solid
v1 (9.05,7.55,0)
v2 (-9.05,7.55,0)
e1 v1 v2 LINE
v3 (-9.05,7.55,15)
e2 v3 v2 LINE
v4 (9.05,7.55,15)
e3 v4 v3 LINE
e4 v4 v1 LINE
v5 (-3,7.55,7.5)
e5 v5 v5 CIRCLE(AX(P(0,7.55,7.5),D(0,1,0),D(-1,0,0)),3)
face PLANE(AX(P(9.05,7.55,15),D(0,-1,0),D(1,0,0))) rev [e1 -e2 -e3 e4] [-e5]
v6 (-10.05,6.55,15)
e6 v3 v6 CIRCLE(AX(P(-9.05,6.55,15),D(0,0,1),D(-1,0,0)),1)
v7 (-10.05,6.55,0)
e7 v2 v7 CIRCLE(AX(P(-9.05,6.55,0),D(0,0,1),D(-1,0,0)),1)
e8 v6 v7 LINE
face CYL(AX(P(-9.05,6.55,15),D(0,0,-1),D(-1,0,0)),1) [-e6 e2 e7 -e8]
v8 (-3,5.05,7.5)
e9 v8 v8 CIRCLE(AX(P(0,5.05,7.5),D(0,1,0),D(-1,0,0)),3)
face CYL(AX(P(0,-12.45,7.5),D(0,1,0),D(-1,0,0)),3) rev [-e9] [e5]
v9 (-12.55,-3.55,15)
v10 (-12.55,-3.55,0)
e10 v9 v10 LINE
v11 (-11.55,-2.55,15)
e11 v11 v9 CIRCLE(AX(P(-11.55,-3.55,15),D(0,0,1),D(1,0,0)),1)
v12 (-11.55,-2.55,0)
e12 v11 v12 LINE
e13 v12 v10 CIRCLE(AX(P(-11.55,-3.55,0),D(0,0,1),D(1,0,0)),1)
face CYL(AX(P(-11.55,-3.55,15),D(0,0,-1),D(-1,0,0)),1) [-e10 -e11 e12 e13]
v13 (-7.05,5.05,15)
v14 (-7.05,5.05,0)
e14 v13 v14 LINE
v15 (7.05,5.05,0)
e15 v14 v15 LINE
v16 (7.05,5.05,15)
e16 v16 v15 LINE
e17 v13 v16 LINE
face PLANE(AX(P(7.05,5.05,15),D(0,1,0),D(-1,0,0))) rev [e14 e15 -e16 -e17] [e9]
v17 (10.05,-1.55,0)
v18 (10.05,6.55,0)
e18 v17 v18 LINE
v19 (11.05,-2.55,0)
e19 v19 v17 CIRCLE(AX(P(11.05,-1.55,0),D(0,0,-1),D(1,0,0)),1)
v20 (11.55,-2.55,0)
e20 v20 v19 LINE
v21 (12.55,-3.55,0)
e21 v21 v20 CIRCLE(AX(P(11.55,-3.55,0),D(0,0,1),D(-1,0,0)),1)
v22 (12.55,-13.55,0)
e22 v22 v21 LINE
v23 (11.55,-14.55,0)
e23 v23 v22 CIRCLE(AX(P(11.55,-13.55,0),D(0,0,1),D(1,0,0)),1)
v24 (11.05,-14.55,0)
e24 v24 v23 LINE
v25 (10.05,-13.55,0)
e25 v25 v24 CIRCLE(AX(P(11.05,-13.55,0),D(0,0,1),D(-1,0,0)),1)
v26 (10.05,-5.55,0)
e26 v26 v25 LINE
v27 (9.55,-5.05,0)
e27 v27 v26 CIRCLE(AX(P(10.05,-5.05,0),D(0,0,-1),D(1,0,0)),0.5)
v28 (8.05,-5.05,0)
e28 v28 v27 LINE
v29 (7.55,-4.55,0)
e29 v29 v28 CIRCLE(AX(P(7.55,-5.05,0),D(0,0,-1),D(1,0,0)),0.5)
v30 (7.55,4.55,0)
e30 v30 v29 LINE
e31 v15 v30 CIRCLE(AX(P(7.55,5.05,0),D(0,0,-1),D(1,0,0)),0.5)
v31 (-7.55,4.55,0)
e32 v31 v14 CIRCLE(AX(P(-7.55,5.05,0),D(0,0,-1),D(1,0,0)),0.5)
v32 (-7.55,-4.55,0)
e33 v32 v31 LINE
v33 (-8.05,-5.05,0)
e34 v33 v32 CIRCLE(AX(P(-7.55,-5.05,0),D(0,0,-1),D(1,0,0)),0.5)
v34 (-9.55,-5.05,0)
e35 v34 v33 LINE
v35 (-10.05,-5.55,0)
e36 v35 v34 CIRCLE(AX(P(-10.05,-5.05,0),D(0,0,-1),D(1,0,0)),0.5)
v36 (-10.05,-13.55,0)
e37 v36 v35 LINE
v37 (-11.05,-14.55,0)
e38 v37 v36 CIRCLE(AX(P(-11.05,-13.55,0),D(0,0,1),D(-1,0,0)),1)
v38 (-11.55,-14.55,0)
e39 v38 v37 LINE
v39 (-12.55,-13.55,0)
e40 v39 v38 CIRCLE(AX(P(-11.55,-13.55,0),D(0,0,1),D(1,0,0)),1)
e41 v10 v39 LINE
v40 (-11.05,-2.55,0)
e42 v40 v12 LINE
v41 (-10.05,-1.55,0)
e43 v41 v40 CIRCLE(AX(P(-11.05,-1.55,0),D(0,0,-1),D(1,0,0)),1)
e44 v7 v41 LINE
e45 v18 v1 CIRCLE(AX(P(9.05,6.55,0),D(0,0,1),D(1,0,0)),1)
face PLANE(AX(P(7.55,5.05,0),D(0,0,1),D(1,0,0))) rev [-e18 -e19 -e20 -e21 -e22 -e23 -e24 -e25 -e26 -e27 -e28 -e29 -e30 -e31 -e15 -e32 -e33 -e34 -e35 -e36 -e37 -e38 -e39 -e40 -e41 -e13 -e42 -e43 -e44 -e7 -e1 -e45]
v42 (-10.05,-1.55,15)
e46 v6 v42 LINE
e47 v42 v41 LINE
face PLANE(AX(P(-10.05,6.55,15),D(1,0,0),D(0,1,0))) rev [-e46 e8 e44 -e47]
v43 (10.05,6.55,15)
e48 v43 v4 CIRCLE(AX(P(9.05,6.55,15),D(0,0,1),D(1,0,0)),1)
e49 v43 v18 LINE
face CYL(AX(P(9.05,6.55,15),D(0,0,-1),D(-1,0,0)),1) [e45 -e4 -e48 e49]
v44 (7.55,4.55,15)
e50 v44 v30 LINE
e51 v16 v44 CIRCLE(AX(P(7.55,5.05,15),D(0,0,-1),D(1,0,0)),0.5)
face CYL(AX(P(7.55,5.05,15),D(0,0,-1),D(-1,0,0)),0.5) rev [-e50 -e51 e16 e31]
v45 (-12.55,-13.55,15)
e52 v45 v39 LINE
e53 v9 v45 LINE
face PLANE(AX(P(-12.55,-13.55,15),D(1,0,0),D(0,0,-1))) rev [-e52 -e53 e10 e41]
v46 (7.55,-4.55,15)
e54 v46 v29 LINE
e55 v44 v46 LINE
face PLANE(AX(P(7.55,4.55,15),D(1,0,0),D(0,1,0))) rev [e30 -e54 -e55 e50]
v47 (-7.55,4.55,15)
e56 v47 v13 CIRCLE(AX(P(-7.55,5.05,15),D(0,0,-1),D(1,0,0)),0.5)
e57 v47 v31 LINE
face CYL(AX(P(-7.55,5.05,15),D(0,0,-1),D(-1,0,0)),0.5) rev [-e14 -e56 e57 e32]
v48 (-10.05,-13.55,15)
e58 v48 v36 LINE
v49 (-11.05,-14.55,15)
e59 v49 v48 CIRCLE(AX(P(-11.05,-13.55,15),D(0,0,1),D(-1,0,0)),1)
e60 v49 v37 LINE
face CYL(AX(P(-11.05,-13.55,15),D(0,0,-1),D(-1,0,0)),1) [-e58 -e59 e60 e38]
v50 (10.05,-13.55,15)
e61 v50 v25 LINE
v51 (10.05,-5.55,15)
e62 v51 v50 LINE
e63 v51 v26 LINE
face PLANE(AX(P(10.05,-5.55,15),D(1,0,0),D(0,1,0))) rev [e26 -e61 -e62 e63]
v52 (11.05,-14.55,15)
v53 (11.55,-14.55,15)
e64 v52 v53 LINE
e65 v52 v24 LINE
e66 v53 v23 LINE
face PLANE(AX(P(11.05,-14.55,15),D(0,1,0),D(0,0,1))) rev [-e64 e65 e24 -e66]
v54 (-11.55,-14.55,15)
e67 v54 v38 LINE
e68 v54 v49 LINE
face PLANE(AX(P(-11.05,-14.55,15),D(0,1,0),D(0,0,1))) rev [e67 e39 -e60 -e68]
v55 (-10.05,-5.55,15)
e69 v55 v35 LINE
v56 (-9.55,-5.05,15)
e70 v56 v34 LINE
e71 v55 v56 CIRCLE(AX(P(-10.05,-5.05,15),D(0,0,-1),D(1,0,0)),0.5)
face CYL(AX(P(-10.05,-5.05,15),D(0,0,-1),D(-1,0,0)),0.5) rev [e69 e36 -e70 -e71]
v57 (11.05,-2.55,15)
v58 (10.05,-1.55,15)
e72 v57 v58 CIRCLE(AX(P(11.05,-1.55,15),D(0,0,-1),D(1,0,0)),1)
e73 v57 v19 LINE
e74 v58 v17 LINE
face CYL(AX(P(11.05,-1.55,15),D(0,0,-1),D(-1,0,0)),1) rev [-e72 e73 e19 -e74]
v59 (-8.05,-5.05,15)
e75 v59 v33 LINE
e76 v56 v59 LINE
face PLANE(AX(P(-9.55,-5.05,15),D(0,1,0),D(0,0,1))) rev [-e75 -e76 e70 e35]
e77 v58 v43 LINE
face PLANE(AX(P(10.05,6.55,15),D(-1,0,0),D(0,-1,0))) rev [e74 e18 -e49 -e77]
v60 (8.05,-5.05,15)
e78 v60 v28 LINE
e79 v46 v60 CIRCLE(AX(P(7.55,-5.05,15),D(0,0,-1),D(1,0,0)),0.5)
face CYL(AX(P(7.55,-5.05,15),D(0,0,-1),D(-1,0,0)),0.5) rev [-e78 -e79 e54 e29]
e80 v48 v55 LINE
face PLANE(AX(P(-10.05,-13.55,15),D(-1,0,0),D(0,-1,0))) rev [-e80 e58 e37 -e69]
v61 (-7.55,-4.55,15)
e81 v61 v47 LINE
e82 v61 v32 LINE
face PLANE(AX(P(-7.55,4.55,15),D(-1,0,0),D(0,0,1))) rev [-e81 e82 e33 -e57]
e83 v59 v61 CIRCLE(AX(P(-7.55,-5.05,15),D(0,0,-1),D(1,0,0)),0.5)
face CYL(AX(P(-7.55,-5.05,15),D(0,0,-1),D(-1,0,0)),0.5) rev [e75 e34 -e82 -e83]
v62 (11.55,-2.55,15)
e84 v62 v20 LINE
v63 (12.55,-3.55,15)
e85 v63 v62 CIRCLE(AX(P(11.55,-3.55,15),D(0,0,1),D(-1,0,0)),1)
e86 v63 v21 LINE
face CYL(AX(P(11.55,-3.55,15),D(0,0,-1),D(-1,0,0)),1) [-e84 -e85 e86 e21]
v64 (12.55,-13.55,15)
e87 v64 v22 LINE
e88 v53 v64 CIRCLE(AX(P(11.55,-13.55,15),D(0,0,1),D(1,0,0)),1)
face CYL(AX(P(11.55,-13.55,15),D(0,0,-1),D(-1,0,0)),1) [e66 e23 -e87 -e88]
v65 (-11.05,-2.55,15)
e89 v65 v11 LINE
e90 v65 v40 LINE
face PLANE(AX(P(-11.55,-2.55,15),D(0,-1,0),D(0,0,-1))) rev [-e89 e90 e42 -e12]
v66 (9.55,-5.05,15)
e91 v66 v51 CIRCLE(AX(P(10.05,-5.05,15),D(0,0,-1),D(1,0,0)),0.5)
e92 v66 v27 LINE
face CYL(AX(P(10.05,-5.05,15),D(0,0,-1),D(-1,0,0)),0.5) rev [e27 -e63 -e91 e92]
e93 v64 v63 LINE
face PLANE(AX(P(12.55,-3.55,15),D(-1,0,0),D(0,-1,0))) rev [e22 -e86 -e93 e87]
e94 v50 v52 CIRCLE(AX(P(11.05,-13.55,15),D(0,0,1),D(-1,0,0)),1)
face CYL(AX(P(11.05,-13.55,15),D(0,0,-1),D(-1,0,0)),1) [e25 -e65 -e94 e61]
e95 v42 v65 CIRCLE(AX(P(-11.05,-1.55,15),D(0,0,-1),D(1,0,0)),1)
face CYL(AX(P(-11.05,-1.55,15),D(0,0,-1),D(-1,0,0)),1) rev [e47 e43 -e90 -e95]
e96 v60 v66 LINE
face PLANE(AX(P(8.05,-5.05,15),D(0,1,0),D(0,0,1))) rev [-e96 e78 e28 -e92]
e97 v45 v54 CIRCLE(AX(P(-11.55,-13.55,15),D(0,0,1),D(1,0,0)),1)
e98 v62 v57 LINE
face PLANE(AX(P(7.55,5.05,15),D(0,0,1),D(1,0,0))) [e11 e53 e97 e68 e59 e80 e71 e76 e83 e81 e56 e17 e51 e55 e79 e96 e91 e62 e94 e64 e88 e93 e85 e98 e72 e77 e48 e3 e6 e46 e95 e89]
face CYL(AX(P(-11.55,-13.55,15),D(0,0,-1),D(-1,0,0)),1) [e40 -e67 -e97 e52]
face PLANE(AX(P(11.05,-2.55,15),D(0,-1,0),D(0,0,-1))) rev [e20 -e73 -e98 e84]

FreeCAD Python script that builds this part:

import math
import FreeCAD as App
import Part
import Sketcher
from FreeCAD import Vector

doc = App.newDocument("Part")
body = doc.addObject("PartDesign::Body", "Body")

sketch1 = body.newObject("Sketcher::SketchObject", "Sketch")
sketch1.AttachmentSupport = (doc.getObject("XY_Plane"), [""])
sketch1.MapMode = "FlatFace"
sketch1.addGeometry([
    Part.LineSegment(Vector(-9.55, -5.05, 0), Vector(-8.05, -5.05, 0)),
    Part.ArcOfCircle(Part.Circle(Vector(-7.55, -5.05, 0), Vector(0, 0, 1), 0.5), math.radians(90), math.radians(180)),
    Part.LineSegment(Vector(-7.55, -4.55, 0), Vector(-7.55, 4.55, 0)),
    Part.ArcOfCircle(Part.Circle(Vector(-7.55, 5.05, 0), Vector(0, 0, 1), 0.5), math.radians(0), math.radians(270)),
    Part.LineSegment(Vector(-7.05, 5.05, 0), Vector(7.05, 5.05, 0)),
    Part.ArcOfCircle(Part.Circle(Vector(7.55, 5.05, 0), Vector(0, 0, 1), 0.5), math.radians(-90), math.radians(180)),
    Part.LineSegment(Vector(7.55, 4.55, 0), Vector(7.55, -4.55, 0)),
    Part.ArcOfCircle(Part.Circle(Vector(7.55, -5.05, 0), Vector(0, 0, 1), 0.5), math.radians(0), math.radians(90)),
    Part.LineSegment(Vector(8.05, -5.05, 0), Vector(9.55, -5.05, 0)),
    Part.ArcOfCircle(Part.Circle(Vector(10.05, -5.05, 0), Vector(0, 0, 1), 0.5), math.radians(-90), math.radians(180)),
    Part.LineSegment(Vector(10.05, -5.55, 0), Vector(10.05, -13.55, 0)),
    Part.ArcOfCircle(Part.Circle(Vector(11.05, -13.55, 0), Vector(0, 0, 1), 1), math.radians(-180), math.radians(-90)),
    Part.LineSegment(Vector(11.05, -14.55, 0), Vector(11.55, -14.55, 0)),
    Part.ArcOfCircle(Part.Circle(Vector(11.55, -13.55, 0), Vector(0, 0, 1), 1), math.radians(-90), math.radians(0)),
    Part.LineSegment(Vector(12.55, -13.55, 0), Vector(12.55, -3.55, 0)),
    Part.ArcOfCircle(Part.Circle(Vector(11.55, -3.55, 0), Vector(0, 0, 1), 1), math.radians(0), math.radians(90)),
    Part.LineSegment(Vector(11.55, -2.55, 0), Vector(11.05, -2.55, 0)),
    Part.ArcOfCircle(Part.Circle(Vector(11.05, -1.55, 0), Vector(0, 0, 1), 1), math.radians(-180), math.radians(-90)),
    Part.LineSegment(Vector(10.05, -1.55, 0), Vector(10.05, 6.55, 0)),
    Part.ArcOfCircle(Part.Circle(Vector(9.05, 6.55, 0), Vector(0, 0, 1), 1), math.radians(0), math.radians(90)),
    Part.LineSegment(Vector(9.05, 7.55, 0), Vector(-9.05, 7.55, 0)),
    Part.ArcOfCircle(Part.Circle(Vector(-9.05, 6.55, 0), Vector(0, 0, 1), 1), math.radians(90), math.radians(180)),
    Part.LineSegment(Vector(-10.05, 6.55, 0), Vector(-10.05, -1.55, 0)),
    Part.ArcOfCircle(Part.Circle(Vector(-11.05, -1.55, 0), Vector(0, 0, 1), 1), math.radians(-90), math.radians(0)),
    Part.LineSegment(Vector(-11.05, -2.55, 0), Vector(-11.55, -2.55, 0)),
    Part.ArcOfCircle(Part.Circle(Vector(-11.55, -3.55, 0), Vector(0, 0, 1), 1), math.radians(90), math.radians(180)),
    Part.LineSegment(Vector(-12.55, -3.55, 0), Vector(-12.55, -13.55, 0)),
    Part.ArcOfCircle(Part.Circle(Vector(-11.55, -13.55, 0), Vector(0, 0, 1), 1), math.radians(-180), math.radians(-90)),
    Part.LineSegment(Vector(-11.55, -14.55, 0), Vector(-11.05, -14.55, 0)),
    Part.ArcOfCircle(Part.Circle(Vector(-11.05, -13.55, 0), Vector(0, 0, 1), 1), math.radians(-90), math.radians(0)),
    Part.LineSegment(Vector(-10.05, -13.55, 0), Vector(-10.05, -5.55, 0)),
    Part.ArcOfCircle(Part.Circle(Vector(-10.05, -5.05, 0), Vector(0, 0, 1), 0.5), math.radians(0), math.radians(270)),
], False)
sketch1.addConstraint([
    Sketcher.Constraint("Coincident", 0, 2, 1, 2),
    Sketcher.Constraint("Coincident", 1, 1, 2, 1),
    Sketcher.Constraint("Coincident", 2, 2, 3, 2),
    Sketcher.Constraint("Coincident", 3, 1, 4, 1),
    Sketcher.Constraint("Coincident", 4, 2, 5, 2),
    Sketcher.Constraint("Coincident", 5, 1, 6, 1),
    Sketcher.Constraint("Coincident", 6, 2, 7, 2),
    Sketcher.Constraint("Coincident", 7, 1, 8, 1),
    Sketcher.Constraint("Coincident", 8, 2, 9, 2),
    Sketcher.Constraint("Coincident", 9, 1, 10, 1),
    Sketcher.Constraint("Tangent", 10, 2, 11, 1),
    Sketcher.Constraint("Tangent", 11, 2, 12, 1),
    Sketcher.Constraint("Tangent", 12, 2, 13, 1),
    Sketcher.Constraint("Tangent", 13, 2, 14, 1),
    Sketcher.Constraint("Tangent", 14, 2, 15, 1),
    Sketcher.Constraint("Tangent", 15, 2, 16, 1),
    Sketcher.Constraint("Tangent", 16, 2, 17, 2),
    Sketcher.Constraint("Tangent", 17, 1, 18, 1),
    Sketcher.Constraint("Tangent", 18, 2, 19, 1),
    Sketcher.Constraint("Tangent", 19, 2, 20, 1),
    Sketcher.Constraint("Tangent", 20, 2, 21, 1),
    Sketcher.Constraint("Tangent", 21, 2, 22, 1),
    Sketcher.Constraint("Tangent", 22, 2, 23, 2),
    Sketcher.Constraint("Tangent", 23, 1, 24, 1),
    Sketcher.Constraint("Tangent", 24, 2, 25, 1),
    Sketcher.Constraint("Tangent", 25, 2, 26, 1),
    Sketcher.Constraint("Tangent", 26, 2, 27, 1),
    Sketcher.Constraint("Tangent", 27, 2, 28, 1),
    Sketcher.Constraint("Tangent", 28, 2, 29, 1),
    Sketcher.Constraint("Tangent", 29, 2, 30, 1),
    Sketcher.Constraint("Coincident", 30, 2, 31, 2),
    Sketcher.Constraint("Coincident", 31, 1, 0, 1),
    Sketcher.Constraint("Horizontal", 0),
    Sketcher.Constraint("Vertical", 2),
    Sketcher.Constraint("Horizontal", 4),
    Sketcher.Constraint("Vertical", 6),
    Sketcher.Constraint("Horizontal", 8),
    Sketcher.Constraint("Vertical", 10),
    Sketcher.Constraint("Horizontal", 12),
    Sketcher.Constraint("Vertical", 14),
    Sketcher.Constraint("Horizontal", 16),
    Sketcher.Constraint("Vertical", 18),
    Sketcher.Constraint("Horizontal", 20),
    Sketcher.Constraint("Vertical", 22),
    Sketcher.Constraint("Horizontal", 24),
    Sketcher.Constraint("Vertical", 26),
    Sketcher.Constraint("Horizontal", 28),
    Sketcher.Constraint("Vertical", 30),
    Sketcher.Constraint("Equal", 1, 3),
    Sketcher.Constraint("Equal", 3, 5),
    Sketcher.Constraint("Equal", 5, 7),
    Sketcher.Constraint("Equal", 7, 9),
    Sketcher.Constraint("Equal", 11, 13),
    Sketcher.Constraint("Equal", 13, 15),
    Sketcher.Constraint("Equal", 15, 17),
    Sketcher.Constraint("Equal", 17, 19),
    Sketcher.Constraint("Equal", 19, 21),
    Sketcher.Constraint("Equal", 21, 23),
    Sketcher.Constraint("Equal", 23, 25),
    Sketcher.Constraint("Equal", 25, 27),
    Sketcher.Constraint("Equal", 27, 29),
    Sketcher.Constraint("Equal", 9, 31),
    Sketcher.Constraint("Symmetric", 1, 3, 5, 3, -1, 1),
    Sketcher.Constraint("Symmetric", 3, 3, 7, 3, -1, 1),
    Sketcher.Constraint("Symmetric", 3, 3, 5, 3, -2),
    Sketcher.Constraint("Symmetric", 17, 3, 23, 3, -2),
    Sketcher.Constraint("Symmetric", 13, 3, 27, 3, -2),
    Sketcher.Constraint("Symmetric", 9, 3, 31, 3, -2),
    Sketcher.Constraint("Horizontal", 7, 3, 9, 3),
    Sketcher.Constraint("Horizontal", 31, 3, 0, 2),
    Sketcher.Constraint("Horizontal", 5, 3, 3, 1),
    Sketcher.Constraint("Horizontal", 0, 2, 7, 1),
    Sketcher.Constraint("Vertical", 11, 3, 17, 3),
    Sketcher.Constraint("Vertical", 23, 3, 29, 3),
    Sketcher.Constraint("Vertical", 3, 3, 1, 1),
    Sketcher.Constraint("Vertical", 7, 3, 5, 1),
    Sketcher.Constraint("Vertical", 31, 3, 21, 2),
    Sketcher.Constraint("Radius", 11, 1.0),
    Sketcher.Constraint("Radius", 1, 0.5),
    Sketcher.Constraint("DistanceY", 10, 2, 10, 1, 8.0),
    Sketcher.Constraint("DistanceY", 14, 1, 14, 2, 10.0),
    Sketcher.Constraint("DistanceX", 0, 1, 0, 2, 1.5),
    Sketcher.Constraint("DistanceX", 4, 1, 4, 2, 14.1),
    Sketcher.Constraint("DistanceX", 12, 1, 12, 2, 0.5),
    Sketcher.Constraint("DistanceY", 2, 1, 2, 2, 9.1),
    Sketcher.Constraint("DistanceY", 18, 1, 18, 2, 8.1),
])
pad1 = body.newObject("PartDesign::Pad", "Pad")
pad1.Profile = sketch1
pad1.Length = 15

sketch2 = body.newObject("Sketcher::SketchObject", "Sketch001")
sketch2.AttachmentSupport = (doc.getObject("XZ_Plane"), [""])
sketch2.MapMode = "FlatFace"
sketch2.AttachmentOffset = App.Placement(Vector(0, 0, -7.55), App.Rotation())
sketch2.addGeometry(Part.Circle(Vector(0, 7.5, 0), Vector(0, 0, 1), 3), False)
sketch2.addConstraint([
    Sketcher.Constraint("PointOnObject", 0, 3, -2),
    Sketcher.Constraint("Diameter", 0, 6.0),
    Sketcher.Constraint("DistanceY", -1, 1, 0, 3, 7.5),
])
pocket1 = body.newObject("PartDesign::Pocket", "Pocket")
pocket1.Profile = sketch2
pocket1.Length = 20
pocket1.Reversed = True

doc.recompute()
